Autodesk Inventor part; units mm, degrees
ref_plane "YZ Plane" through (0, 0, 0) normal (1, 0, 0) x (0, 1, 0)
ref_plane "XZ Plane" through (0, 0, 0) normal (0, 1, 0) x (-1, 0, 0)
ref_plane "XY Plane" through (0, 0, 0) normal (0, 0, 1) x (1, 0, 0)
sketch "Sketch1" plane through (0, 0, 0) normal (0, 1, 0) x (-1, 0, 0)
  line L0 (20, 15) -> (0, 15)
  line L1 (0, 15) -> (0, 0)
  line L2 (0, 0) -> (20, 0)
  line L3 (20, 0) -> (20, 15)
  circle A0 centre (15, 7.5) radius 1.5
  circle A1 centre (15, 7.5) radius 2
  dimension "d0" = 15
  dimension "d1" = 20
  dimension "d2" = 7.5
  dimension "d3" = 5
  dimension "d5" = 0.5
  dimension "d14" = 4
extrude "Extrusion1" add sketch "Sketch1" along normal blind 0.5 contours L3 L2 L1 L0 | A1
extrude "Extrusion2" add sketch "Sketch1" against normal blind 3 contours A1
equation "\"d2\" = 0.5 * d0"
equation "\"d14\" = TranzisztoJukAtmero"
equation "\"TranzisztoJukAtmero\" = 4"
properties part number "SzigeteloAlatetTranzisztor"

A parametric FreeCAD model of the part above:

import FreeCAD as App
import Part
import Sketcher
from FreeCAD import Vector


def add_polygon(sketch, points):
    """Adds a closed chain of lines whose ends are joined by coincident constraints."""
    first, n = sketch.GeometryCount, len(points)
    for a, b in zip(points, points[1:] + points[:1]):
        sketch.addGeometry(Part.LineSegment(App.Vector(*a, 0), App.Vector(*b, 0)), False)
    for i in range(n):
        sketch.addConstraint(Sketcher.Constraint("Coincident", first + i, 2, first + (i + 1) % n, 1))

doc = App.newDocument("Part")
body = doc.addObject("PartDesign::Body", "Body")

sketch1 = body.newObject("Sketcher::SketchObject", "Sketch")
sketch1.AttachmentSupport = (doc.getObject("XZ_Plane"), [""])
sketch1.MapMode = "FlatFace"
add_polygon(sketch1, [(-20, 0), (-20, 15), (0, 15), (0, 0)])
sketch1.addGeometry(Part.Circle(Vector(-15, 7.5, 0), Vector(0, 0, 1), 1.5), False)
sketch1.addConstraint(Sketcher.Constraint("Vertical", 0))
sketch1.addConstraint(Sketcher.Constraint("Horizontal", 1))
sketch1.addConstraint(Sketcher.Constraint("Vertical", 2))
sketch1.addConstraint(Sketcher.Constraint("Horizontal", 3))
sketch1.addConstraint(Sketcher.Constraint("Coincident", 2, 2, -1, 1))
sketch1.addConstraint(Sketcher.Constraint("DistanceX", 1, 1, 1, 2, 20.0))
sketch1.addConstraint(Sketcher.Constraint("DistanceY", 0, 1, 0, 2, 15.0))
sketch1.addConstraint(Sketcher.Constraint("Diameter", 4, 3.0))
sketch1.addConstraint(Sketcher.Constraint("DistanceX", 4, 3, -1, 1, 15.0))
sketch1.addConstraint(Sketcher.Constraint("DistanceY", -1, 1, 4, 3, 7.5))
pad1 = body.newObject("PartDesign::Pad", "Pad")
pad1.Profile = sketch1
pad1.Length = 0.5
pad1.Reversed = True

sketch2 = body.newObject("Sketcher::SketchObject", "Sketch001")
sketch2.AttachmentSupport = (doc.getObject("XZ_Plane"), [""])
sketch2.MapMode = "FlatFace"
sketch2.addGeometry(Part.Circle(Vector(-15, 7.5, 0), Vector(0, 0, 1), 2), False)
sketch2.addGeometry(Part.Circle(Vector(-15, 7.5, 0), Vector(0, 0, 1), 1.5), False)
sketch2.addConstraint(Sketcher.Constraint("Coincident", 1, 3, 0, 3))
sketch2.addConstraint(Sketcher.Constraint("Diameter", 0, 4.0))
sketch2.addConstraint(Sketcher.Constraint("Diameter", 1, 3.0))
sketch2.addConstraint(Sketcher.Constraint("DistanceX", 0, 3, -1, 1, 15.0))
sketch2.addConstraint(Sketcher.Constraint("DistanceY", -1, 1, 0, 3, 7.5))
pad2 = body.newObject("PartDesign::Pad", "Pad001")
pad2.Profile = sketch2
pad2.Length = 3

doc.recompute()
